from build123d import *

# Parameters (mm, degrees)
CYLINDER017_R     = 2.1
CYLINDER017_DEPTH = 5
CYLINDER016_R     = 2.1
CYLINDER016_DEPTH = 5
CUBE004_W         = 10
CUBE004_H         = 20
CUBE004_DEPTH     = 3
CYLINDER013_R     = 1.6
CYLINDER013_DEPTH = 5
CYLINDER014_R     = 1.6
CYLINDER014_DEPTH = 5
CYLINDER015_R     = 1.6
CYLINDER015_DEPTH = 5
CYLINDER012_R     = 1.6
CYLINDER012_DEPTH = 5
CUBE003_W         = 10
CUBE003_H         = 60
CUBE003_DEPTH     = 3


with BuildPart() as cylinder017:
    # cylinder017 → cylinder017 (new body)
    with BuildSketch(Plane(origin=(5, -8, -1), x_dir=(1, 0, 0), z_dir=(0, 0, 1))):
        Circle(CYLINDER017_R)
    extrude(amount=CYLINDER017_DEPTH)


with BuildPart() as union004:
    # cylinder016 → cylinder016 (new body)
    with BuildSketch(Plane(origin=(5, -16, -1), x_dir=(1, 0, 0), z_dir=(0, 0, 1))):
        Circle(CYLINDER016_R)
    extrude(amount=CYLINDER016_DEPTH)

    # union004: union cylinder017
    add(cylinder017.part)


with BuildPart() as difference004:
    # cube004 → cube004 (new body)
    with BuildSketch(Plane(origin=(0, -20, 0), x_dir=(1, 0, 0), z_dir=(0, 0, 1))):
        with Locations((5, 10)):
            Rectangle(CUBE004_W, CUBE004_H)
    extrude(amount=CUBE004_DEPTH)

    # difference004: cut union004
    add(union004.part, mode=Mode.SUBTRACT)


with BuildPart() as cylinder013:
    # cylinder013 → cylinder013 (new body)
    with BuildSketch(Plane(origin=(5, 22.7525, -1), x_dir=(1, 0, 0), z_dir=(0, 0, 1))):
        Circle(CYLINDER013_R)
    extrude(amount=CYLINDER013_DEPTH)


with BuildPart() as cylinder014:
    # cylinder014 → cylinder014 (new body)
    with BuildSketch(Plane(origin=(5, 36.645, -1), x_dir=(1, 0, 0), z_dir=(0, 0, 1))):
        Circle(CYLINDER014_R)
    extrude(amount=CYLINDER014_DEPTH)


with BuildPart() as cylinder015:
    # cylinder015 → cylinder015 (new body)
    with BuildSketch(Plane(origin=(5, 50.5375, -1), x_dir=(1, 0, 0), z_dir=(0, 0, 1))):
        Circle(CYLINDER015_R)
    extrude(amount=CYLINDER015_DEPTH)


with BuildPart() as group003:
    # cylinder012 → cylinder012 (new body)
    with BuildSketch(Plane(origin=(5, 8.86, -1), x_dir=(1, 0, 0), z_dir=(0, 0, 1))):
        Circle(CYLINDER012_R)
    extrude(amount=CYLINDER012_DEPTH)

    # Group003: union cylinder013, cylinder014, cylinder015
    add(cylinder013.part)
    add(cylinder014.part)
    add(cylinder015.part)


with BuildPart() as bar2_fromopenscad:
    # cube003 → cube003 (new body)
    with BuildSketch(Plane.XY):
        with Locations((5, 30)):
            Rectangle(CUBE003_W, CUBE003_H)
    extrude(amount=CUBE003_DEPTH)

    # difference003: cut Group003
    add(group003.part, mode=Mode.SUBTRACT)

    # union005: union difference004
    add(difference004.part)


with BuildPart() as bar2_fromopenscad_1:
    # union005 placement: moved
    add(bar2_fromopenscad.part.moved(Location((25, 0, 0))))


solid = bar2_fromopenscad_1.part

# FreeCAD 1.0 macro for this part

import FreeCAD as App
import Part
import Sketcher
from FreeCAD import Vector

doc = App.newDocument("Part")
body = doc.addObject("PartDesign::Body", "Body")

# Sketch on XY plane
sketch1 = body.newObject("Sketcher::SketchObject", "Sketch")
sketch1.AttachmentSupport = (doc.getObject("XY_Plane"), [""])
sketch1.MapMode = "FlatFace"
sketch1.AttachmentOffset = App.Placement(Vector(0, 0, -1), App.Rotation())
sketch1.addGeometry(Part.Circle(Vector(5, -8, 0), Vector(0, 0, 1), 2.1), False)
sketch1.addConstraint(Sketcher.Constraint("Diameter", 0, 4.2))
sketch1.addConstraint(Sketcher.Constraint("DistanceX", -1, 1, 0, 3, 5.0))
sketch1.addConstraint(Sketcher.Constraint("DistanceY", 0, 3, -1, 1, 8.0))
pad1 = body.newObject("PartDesign::Pad", "Pad")
pad1.Profile = sketch1
pad1.Length = 5
body2 = doc.addObject("PartDesign::Body", "Body001")
body2.AllowCompound = True

# Sketch on XY plane
sketch2 = body2.newObject("Sketcher::SketchObject", "Sketch001")
sketch2.AttachmentSupport = (doc.getObject("XY_Plane001"), [""])
sketch2.MapMode = "FlatFace"
sketch2.AttachmentOffset = App.Placement(Vector(0, 0, -1), App.Rotation())
sketch2.addGeometry(Part.Circle(Vector(5, -16, 0), Vector(0, 0, 1), 2.1), False)
sketch2.addConstraint(Sketcher.Constraint("Diameter", 0, 4.2))
sketch2.addConstraint(Sketcher.Constraint("DistanceX", -1, 1, 0, 3, 5.0))
sketch2.addConstraint(Sketcher.Constraint("DistanceY", 0, 3, -1, 1, 16.0))
pad2 = body2.newObject("PartDesign::Pad", "Pad001")
pad2.Profile = sketch2
pad2.Length = 5
doc.recompute()

boolean = body2.newObject("PartDesign::Boolean", "Boolean")
boolean.Type = "Fuse"
boolean.addObjects([body])
body3 = doc.addObject("PartDesign::Body", "Body002")

# Sketch on XY plane
sketch3 = body3.newObject("Sketcher::SketchObject", "Sketch002")
sketch3.AttachmentSupport = (doc.getObject("XY_Plane002"), [""])
sketch3.MapMode = "FlatFace"
sketch3.addGeometry(Part.LineSegment(Vector(0, 0, 0), Vector(0, -20, 0)), False)
sketch3.addGeometry(Part.LineSegment(Vector(0, -20, 0), Vector(10, -20, 0)), False)
sketch3.addGeometry(Part.LineSegment(Vector(10, -20, 0), Vector(10, 0, 0)), False)
sketch3.addGeometry(Part.LineSegment(Vector(10, 0, 0), Vector(0, 0, 0)), False)
sketch3.addConstraint(Sketcher.Constraint("Coincident", 0, 2, 1, 1))
sketch3.addConstraint(Sketcher.Constraint("Coincident", 1, 2, 2, 1))
sketch3.addConstraint(Sketcher.Constraint("Coincident", 2, 2, 3, 1))
sketch3.addConstraint(Sketcher.Constraint("Coincident", 3, 2, 0, 1))
sketch3.addConstraint(Sketcher.Constraint("Vertical", 0))
sketch3.addConstraint(Sketcher.Constraint("Horizontal", 1))
sketch3.addConstraint(Sketcher.Constraint("Vertical", 2))
sketch3.addConstraint(Sketcher.Constraint("Horizontal", 3))
sketch3.addConstraint(Sketcher.Constraint("Coincident", 3, 2, -1, 1))
sketch3.addConstraint(Sketcher.Constraint("DistanceX", 1, 1, 1, 2, 10.0))
sketch3.addConstraint(Sketcher.Constraint("DistanceY", 0, 2, 0, 1, 20.0))
pad3 = body3.newObject("PartDesign::Pad", "Pad002")
pad3.Profile = sketch3
pad3.Length = 3
doc.recompute()

boolean2 = body3.newObject("PartDesign::Boolean", "Boolean001")
boolean2.Type = "Cut"
boolean2.addObjects([body2])
body4 = doc.addObject("PartDesign::Body", "Body003")

# Sketch on XY plane
sketch4 = body4.newObject("Sketcher::SketchObject", "Sketch003")
sketch4.AttachmentSupport = (doc.getObject("XY_Plane003"), [""])
sketch4.MapMode = "FlatFace"
sketch4.AttachmentOffset = App.Placement(Vector(0, 0, -1), App.Rotation())
sketch4.addGeometry(Part.Circle(Vector(5, 22.8, 0), Vector(0, 0, 1), 1.6), False)
sketch4.addConstraint(Sketcher.Constraint("Diameter", 0, 3.2))
sketch4.addConstraint(Sketcher.Constraint("DistanceX", -1, 1, 0, 3, 5.0))
sketch4.addConstraint(Sketcher.Constraint("DistanceY", -1, 1, 0, 3, 22.7525))
pad4 = body4.newObject("PartDesign::Pad", "Pad003")
pad4.Profile = sketch4
pad4.Length = 5
body5 = doc.addObject("PartDesign::Body", "Body004")

# Sketch on XY plane
sketch5 = body5.newObject("Sketcher::SketchObject", "Sketch004")
sketch5.AttachmentSupport = (doc.getObject("XY_Plane004"), [""])
sketch5.MapMode = "FlatFace"
sketch5.AttachmentOffset = App.Placement(Vector(0, 0, -1), App.Rotation())
sketch5.addGeometry(Part.Circle(Vector(5, 36.6, 0), Vector(0, 0, 1), 1.6), False)
sketch5.addConstraint(Sketcher.Constraint("Diameter", 0, 3.2))
sketch5.addConstraint(Sketcher.Constraint("DistanceX", -1, 1, 0, 3, 5.0))
sketch5.addConstraint(Sketcher.Constraint("DistanceY", -1, 1, 0, 3, 36.645))
pad5 = body5.newObject("PartDesign::Pad", "Pad004")
pad5.Profile = sketch5
pad5.Length = 5
body6 = doc.addObject("PartDesign::Body", "Body005")

# Sketch on XY plane
sketch6 = body6.newObject("Sketcher::SketchObject", "Sketch005")
sketch6.AttachmentSupport = (doc.getObject("XY_Plane005"), [""])
sketch6.MapMode = "FlatFace"
sketch6.AttachmentOffset = App.Placement(Vector(0, 0, -1), App.Rotation())
sketch6.addGeometry(Part.Circle(Vector(5, 50.5, 0), Vector(0, 0, 1), 1.6), False)
sketch6.addConstraint(Sketcher.Constraint("Diameter", 0, 3.2))
sketch6.addConstraint(Sketcher.Constraint("DistanceX", -1, 1, 0, 3, 5.0))
sketch6.addConstraint(Sketcher.Constraint("DistanceY", -1, 1, 0, 3, 50.5375))
pad6 = body6.newObject("PartDesign::Pad", "Pad005")
pad6.Profile = sketch6
pad6.Length = 5
body7 = doc.addObject("PartDesign::Body", "Body006")
body7.AllowCompound = True

# Sketch on XY plane
sketch7 = body7.newObject("Sketcher::SketchObject", "Sketch006")
sketch7.AttachmentSupport = (doc.getObject("XY_Plane006"), [""])
sketch7.MapMode = "FlatFace"
sketch7.AttachmentOffset = App.Placement(Vector(0, 0, -1), App.Rotation())
sketch7.addGeometry(Part.Circle(Vector(5, 8.9, 0), Vector(0, 0, 1), 1.6), False)
sketch7.addConstraint(Sketcher.Constraint("Diameter", 0, 3.2))
sketch7.addConstraint(Sketcher.Constraint("DistanceX", -1, 1, 0, 3, 5.0))
sketch7.addConstraint(Sketcher.Constraint("DistanceY", -1, 1, 0, 3, 8.86))
pad7 = body7.newObject("PartDesign::Pad", "Pad006")
pad7.Profile = sketch7
pad7.Length = 5
doc.recompute()

boolean3 = body7.newObject("PartDesign::Boolean", "Boolean002")
boolean3.Type = "Fuse"
boolean3.addObjects([body4])
doc.recompute()

boolean4 = body7.newObject("PartDesign::Boolean", "Boolean003")
boolean4.Type = "Fuse"
boolean4.addObjects([body5])
doc.recompute()

boolean5 = body7.newObject("PartDesign::Boolean", "Boolean004")
boolean5.Type = "Fuse"
boolean5.addObjects([body6])
body8 = doc.addObject("PartDesign::Body", "Body007")

# Sketch on XY plane
sketch8 = body8.newObject("Sketcher::SketchObject", "Sketch007")
sketch8.AttachmentSupport = (doc.getObject("XY_Plane007"), [""])
sketch8.MapMode = "FlatFace"
sketch8.addGeometry(Part.LineSegment(Vector(0, 60, 0), Vector(0, 0, 0)), False)
sketch8.addGeometry(Part.LineSegment(Vector(0, 0, 0), Vector(10, 0, 0)), False)
sketch8.addGeometry(Part.LineSegment(Vector(10, 0, 0), Vector(10, 60, 0)), False)
sketch8.addGeometry(Part.LineSegment(Vector(10, 60, 0), Vector(0, 60, 0)), False)
sketch8.addConstraint(Sketcher.Constraint("Coincident", 0, 2, 1, 1))
sketch8.addConstraint(Sketcher.Constraint("Coincident", 1, 2, 2, 1))
sketch8.addConstraint(Sketcher.Constraint("Coincident", 2, 2, 3, 1))
sketch8.addConstraint(Sketcher.Constraint("Coincident", 3, 2, 0, 1))
sketch8.addConstraint(Sketcher.Constraint("Vertical", 0))
sketch8.addConstraint(Sketcher.Constraint("Horizontal", 1))
sketch8.addConstraint(Sketcher.Constraint("Vertical", 2))
sketch8.addConstraint(Sketcher.Constraint("Horizontal", 3))
sketch8.addConstraint(Sketcher.Constraint("Coincident", 0, 2, -1, 1))
sketch8.addConstraint(Sketcher.Constraint("DistanceX", 1, 1, 1, 2, 10.0))
sketch8.addConstraint(Sketcher.Constraint("DistanceY", 0, 2, 0, 1, 60.0))
pad8 = body8.newObject("PartDesign::Pad", "Pad007")
pad8.Profile = sketch8
pad8.Length = 3
doc.recompute()

boolean6 = body8.newObject("PartDesign::Boolean", "Boolean005")
boolean6.Type = "Cut"
boolean6.addObjects([body7])
doc.recompute()

boolean7 = body8.newObject("PartDesign::Boolean", "Boolean006")
boolean7.Type = "Fuse"
boolean7.addObjects([body3])
body9 = doc.addObject("PartDesign::Body", "Body008")
doc.recompute()

body8.Placement = App.Placement(Vector(25, 0, 0), App.Rotation(Vector(0, 0, 1), 0))
boolean8 = body9.newObject("PartDesign::Boolean", "Boolean007")
boolean8.Type = "Fuse"
boolean8.addObjects([body8])

doc.recompute()
